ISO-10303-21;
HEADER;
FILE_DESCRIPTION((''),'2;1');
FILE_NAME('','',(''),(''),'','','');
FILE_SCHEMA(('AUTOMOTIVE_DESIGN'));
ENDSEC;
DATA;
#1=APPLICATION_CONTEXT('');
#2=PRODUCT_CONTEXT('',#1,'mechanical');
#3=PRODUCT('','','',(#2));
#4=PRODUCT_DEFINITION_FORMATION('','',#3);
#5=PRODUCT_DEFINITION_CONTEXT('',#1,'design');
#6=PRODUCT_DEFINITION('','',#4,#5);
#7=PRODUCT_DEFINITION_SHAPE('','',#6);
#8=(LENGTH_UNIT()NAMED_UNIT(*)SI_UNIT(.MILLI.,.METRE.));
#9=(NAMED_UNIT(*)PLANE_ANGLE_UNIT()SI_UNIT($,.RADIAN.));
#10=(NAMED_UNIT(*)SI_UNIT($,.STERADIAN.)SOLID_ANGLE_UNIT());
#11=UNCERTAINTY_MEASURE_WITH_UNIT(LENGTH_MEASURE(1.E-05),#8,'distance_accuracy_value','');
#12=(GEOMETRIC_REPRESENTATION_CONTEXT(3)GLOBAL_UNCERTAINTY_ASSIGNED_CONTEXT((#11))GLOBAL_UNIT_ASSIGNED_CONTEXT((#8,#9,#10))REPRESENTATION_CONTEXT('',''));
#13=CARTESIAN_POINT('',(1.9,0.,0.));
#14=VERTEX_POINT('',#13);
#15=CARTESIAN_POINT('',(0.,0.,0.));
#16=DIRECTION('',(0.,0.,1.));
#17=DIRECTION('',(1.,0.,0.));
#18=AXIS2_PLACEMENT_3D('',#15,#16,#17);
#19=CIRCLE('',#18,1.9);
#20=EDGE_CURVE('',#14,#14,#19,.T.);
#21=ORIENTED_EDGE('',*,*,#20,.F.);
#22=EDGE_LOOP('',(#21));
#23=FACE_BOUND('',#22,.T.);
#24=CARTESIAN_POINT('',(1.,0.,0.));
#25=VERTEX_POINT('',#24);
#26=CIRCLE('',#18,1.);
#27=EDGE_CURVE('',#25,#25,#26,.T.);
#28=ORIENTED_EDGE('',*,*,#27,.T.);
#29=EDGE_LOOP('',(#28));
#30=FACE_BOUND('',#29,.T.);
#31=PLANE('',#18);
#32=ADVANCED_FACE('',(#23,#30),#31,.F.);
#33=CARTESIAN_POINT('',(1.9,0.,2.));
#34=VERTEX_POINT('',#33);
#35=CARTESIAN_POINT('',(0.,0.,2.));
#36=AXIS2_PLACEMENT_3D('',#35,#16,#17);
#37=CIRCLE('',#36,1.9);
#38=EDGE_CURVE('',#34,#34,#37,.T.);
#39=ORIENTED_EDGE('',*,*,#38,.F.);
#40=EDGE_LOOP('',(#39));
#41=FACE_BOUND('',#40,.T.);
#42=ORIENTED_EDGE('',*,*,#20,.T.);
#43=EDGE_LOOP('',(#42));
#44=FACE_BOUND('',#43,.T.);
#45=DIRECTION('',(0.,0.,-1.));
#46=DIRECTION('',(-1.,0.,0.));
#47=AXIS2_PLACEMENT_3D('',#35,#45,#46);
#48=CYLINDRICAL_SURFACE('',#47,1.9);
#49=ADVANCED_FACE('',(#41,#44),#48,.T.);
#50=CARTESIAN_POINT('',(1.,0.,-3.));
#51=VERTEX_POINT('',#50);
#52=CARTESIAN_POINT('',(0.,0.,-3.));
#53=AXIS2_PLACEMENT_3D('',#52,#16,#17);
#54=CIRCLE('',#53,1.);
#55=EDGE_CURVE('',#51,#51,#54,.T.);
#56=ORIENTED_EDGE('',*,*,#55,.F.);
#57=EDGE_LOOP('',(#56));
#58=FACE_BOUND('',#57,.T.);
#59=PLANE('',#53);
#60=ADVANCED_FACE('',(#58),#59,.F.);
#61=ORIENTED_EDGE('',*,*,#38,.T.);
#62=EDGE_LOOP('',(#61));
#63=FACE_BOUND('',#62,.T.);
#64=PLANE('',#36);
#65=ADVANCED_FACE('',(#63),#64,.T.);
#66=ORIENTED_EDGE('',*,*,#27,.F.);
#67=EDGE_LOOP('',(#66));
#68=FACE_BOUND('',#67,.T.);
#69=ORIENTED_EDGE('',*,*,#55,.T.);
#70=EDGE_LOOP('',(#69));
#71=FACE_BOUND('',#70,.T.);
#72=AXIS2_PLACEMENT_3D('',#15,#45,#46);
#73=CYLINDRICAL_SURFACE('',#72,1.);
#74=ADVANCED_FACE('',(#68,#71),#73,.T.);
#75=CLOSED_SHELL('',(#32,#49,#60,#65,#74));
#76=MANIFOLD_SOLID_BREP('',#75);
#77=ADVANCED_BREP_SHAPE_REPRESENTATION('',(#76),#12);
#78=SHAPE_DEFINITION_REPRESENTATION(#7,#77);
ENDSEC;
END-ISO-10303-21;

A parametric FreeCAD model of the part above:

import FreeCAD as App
import Part
import Sketcher
Q = App.Units.Quantity

doc = App.newDocument("Part")
body = doc.addObject("PartDesign::Body", "Body")

sketch1 = body.newObject("Sketcher::SketchObject", "Sketch")
sketch1.AttachmentSupport = (doc.getObject("XY_Plane"), [""])
sketch1.MapMode = "FlatFace"
sketch1.AttachmentOffset = App.Placement(App.Vector(0, 0, -3), App.Rotation())
sketch1.addGeometry(Part.Circle(App.Vector(0, 0, 0), App.Vector(0, 0, 1), 1), False)
sketch1.addConstraint(Sketcher.Constraint("Coincident", 0, 3, -1, 1))
sketch1.addConstraint(Sketcher.Constraint("Diameter", 0, Q("2 mm")))
pad1 = body.newObject("PartDesign::Pad", "Pad")
pad1.Profile = sketch1
pad1.Length = 3

sketch2 = body.newObject("Sketcher::SketchObject", "Sketch001")
sketch2.AttachmentSupport = (doc.getObject("XY_Plane"), [""])
sketch2.MapMode = "FlatFace"
sketch2.addGeometry(Part.Circle(App.Vector(0, 0, 0), App.Vector(0, 0, 1), 1.9), False)
sketch2.addConstraint(Sketcher.Constraint("Coincident", 0, 3, -1, 1))
sketch2.addConstraint(Sketcher.Constraint("Diameter", 0, Q("3.8 mm")))
pad2 = body.newObject("PartDesign::Pad", "Pad001")
pad2.Profile = sketch2
pad2.Length = 2

doc.recompute()
